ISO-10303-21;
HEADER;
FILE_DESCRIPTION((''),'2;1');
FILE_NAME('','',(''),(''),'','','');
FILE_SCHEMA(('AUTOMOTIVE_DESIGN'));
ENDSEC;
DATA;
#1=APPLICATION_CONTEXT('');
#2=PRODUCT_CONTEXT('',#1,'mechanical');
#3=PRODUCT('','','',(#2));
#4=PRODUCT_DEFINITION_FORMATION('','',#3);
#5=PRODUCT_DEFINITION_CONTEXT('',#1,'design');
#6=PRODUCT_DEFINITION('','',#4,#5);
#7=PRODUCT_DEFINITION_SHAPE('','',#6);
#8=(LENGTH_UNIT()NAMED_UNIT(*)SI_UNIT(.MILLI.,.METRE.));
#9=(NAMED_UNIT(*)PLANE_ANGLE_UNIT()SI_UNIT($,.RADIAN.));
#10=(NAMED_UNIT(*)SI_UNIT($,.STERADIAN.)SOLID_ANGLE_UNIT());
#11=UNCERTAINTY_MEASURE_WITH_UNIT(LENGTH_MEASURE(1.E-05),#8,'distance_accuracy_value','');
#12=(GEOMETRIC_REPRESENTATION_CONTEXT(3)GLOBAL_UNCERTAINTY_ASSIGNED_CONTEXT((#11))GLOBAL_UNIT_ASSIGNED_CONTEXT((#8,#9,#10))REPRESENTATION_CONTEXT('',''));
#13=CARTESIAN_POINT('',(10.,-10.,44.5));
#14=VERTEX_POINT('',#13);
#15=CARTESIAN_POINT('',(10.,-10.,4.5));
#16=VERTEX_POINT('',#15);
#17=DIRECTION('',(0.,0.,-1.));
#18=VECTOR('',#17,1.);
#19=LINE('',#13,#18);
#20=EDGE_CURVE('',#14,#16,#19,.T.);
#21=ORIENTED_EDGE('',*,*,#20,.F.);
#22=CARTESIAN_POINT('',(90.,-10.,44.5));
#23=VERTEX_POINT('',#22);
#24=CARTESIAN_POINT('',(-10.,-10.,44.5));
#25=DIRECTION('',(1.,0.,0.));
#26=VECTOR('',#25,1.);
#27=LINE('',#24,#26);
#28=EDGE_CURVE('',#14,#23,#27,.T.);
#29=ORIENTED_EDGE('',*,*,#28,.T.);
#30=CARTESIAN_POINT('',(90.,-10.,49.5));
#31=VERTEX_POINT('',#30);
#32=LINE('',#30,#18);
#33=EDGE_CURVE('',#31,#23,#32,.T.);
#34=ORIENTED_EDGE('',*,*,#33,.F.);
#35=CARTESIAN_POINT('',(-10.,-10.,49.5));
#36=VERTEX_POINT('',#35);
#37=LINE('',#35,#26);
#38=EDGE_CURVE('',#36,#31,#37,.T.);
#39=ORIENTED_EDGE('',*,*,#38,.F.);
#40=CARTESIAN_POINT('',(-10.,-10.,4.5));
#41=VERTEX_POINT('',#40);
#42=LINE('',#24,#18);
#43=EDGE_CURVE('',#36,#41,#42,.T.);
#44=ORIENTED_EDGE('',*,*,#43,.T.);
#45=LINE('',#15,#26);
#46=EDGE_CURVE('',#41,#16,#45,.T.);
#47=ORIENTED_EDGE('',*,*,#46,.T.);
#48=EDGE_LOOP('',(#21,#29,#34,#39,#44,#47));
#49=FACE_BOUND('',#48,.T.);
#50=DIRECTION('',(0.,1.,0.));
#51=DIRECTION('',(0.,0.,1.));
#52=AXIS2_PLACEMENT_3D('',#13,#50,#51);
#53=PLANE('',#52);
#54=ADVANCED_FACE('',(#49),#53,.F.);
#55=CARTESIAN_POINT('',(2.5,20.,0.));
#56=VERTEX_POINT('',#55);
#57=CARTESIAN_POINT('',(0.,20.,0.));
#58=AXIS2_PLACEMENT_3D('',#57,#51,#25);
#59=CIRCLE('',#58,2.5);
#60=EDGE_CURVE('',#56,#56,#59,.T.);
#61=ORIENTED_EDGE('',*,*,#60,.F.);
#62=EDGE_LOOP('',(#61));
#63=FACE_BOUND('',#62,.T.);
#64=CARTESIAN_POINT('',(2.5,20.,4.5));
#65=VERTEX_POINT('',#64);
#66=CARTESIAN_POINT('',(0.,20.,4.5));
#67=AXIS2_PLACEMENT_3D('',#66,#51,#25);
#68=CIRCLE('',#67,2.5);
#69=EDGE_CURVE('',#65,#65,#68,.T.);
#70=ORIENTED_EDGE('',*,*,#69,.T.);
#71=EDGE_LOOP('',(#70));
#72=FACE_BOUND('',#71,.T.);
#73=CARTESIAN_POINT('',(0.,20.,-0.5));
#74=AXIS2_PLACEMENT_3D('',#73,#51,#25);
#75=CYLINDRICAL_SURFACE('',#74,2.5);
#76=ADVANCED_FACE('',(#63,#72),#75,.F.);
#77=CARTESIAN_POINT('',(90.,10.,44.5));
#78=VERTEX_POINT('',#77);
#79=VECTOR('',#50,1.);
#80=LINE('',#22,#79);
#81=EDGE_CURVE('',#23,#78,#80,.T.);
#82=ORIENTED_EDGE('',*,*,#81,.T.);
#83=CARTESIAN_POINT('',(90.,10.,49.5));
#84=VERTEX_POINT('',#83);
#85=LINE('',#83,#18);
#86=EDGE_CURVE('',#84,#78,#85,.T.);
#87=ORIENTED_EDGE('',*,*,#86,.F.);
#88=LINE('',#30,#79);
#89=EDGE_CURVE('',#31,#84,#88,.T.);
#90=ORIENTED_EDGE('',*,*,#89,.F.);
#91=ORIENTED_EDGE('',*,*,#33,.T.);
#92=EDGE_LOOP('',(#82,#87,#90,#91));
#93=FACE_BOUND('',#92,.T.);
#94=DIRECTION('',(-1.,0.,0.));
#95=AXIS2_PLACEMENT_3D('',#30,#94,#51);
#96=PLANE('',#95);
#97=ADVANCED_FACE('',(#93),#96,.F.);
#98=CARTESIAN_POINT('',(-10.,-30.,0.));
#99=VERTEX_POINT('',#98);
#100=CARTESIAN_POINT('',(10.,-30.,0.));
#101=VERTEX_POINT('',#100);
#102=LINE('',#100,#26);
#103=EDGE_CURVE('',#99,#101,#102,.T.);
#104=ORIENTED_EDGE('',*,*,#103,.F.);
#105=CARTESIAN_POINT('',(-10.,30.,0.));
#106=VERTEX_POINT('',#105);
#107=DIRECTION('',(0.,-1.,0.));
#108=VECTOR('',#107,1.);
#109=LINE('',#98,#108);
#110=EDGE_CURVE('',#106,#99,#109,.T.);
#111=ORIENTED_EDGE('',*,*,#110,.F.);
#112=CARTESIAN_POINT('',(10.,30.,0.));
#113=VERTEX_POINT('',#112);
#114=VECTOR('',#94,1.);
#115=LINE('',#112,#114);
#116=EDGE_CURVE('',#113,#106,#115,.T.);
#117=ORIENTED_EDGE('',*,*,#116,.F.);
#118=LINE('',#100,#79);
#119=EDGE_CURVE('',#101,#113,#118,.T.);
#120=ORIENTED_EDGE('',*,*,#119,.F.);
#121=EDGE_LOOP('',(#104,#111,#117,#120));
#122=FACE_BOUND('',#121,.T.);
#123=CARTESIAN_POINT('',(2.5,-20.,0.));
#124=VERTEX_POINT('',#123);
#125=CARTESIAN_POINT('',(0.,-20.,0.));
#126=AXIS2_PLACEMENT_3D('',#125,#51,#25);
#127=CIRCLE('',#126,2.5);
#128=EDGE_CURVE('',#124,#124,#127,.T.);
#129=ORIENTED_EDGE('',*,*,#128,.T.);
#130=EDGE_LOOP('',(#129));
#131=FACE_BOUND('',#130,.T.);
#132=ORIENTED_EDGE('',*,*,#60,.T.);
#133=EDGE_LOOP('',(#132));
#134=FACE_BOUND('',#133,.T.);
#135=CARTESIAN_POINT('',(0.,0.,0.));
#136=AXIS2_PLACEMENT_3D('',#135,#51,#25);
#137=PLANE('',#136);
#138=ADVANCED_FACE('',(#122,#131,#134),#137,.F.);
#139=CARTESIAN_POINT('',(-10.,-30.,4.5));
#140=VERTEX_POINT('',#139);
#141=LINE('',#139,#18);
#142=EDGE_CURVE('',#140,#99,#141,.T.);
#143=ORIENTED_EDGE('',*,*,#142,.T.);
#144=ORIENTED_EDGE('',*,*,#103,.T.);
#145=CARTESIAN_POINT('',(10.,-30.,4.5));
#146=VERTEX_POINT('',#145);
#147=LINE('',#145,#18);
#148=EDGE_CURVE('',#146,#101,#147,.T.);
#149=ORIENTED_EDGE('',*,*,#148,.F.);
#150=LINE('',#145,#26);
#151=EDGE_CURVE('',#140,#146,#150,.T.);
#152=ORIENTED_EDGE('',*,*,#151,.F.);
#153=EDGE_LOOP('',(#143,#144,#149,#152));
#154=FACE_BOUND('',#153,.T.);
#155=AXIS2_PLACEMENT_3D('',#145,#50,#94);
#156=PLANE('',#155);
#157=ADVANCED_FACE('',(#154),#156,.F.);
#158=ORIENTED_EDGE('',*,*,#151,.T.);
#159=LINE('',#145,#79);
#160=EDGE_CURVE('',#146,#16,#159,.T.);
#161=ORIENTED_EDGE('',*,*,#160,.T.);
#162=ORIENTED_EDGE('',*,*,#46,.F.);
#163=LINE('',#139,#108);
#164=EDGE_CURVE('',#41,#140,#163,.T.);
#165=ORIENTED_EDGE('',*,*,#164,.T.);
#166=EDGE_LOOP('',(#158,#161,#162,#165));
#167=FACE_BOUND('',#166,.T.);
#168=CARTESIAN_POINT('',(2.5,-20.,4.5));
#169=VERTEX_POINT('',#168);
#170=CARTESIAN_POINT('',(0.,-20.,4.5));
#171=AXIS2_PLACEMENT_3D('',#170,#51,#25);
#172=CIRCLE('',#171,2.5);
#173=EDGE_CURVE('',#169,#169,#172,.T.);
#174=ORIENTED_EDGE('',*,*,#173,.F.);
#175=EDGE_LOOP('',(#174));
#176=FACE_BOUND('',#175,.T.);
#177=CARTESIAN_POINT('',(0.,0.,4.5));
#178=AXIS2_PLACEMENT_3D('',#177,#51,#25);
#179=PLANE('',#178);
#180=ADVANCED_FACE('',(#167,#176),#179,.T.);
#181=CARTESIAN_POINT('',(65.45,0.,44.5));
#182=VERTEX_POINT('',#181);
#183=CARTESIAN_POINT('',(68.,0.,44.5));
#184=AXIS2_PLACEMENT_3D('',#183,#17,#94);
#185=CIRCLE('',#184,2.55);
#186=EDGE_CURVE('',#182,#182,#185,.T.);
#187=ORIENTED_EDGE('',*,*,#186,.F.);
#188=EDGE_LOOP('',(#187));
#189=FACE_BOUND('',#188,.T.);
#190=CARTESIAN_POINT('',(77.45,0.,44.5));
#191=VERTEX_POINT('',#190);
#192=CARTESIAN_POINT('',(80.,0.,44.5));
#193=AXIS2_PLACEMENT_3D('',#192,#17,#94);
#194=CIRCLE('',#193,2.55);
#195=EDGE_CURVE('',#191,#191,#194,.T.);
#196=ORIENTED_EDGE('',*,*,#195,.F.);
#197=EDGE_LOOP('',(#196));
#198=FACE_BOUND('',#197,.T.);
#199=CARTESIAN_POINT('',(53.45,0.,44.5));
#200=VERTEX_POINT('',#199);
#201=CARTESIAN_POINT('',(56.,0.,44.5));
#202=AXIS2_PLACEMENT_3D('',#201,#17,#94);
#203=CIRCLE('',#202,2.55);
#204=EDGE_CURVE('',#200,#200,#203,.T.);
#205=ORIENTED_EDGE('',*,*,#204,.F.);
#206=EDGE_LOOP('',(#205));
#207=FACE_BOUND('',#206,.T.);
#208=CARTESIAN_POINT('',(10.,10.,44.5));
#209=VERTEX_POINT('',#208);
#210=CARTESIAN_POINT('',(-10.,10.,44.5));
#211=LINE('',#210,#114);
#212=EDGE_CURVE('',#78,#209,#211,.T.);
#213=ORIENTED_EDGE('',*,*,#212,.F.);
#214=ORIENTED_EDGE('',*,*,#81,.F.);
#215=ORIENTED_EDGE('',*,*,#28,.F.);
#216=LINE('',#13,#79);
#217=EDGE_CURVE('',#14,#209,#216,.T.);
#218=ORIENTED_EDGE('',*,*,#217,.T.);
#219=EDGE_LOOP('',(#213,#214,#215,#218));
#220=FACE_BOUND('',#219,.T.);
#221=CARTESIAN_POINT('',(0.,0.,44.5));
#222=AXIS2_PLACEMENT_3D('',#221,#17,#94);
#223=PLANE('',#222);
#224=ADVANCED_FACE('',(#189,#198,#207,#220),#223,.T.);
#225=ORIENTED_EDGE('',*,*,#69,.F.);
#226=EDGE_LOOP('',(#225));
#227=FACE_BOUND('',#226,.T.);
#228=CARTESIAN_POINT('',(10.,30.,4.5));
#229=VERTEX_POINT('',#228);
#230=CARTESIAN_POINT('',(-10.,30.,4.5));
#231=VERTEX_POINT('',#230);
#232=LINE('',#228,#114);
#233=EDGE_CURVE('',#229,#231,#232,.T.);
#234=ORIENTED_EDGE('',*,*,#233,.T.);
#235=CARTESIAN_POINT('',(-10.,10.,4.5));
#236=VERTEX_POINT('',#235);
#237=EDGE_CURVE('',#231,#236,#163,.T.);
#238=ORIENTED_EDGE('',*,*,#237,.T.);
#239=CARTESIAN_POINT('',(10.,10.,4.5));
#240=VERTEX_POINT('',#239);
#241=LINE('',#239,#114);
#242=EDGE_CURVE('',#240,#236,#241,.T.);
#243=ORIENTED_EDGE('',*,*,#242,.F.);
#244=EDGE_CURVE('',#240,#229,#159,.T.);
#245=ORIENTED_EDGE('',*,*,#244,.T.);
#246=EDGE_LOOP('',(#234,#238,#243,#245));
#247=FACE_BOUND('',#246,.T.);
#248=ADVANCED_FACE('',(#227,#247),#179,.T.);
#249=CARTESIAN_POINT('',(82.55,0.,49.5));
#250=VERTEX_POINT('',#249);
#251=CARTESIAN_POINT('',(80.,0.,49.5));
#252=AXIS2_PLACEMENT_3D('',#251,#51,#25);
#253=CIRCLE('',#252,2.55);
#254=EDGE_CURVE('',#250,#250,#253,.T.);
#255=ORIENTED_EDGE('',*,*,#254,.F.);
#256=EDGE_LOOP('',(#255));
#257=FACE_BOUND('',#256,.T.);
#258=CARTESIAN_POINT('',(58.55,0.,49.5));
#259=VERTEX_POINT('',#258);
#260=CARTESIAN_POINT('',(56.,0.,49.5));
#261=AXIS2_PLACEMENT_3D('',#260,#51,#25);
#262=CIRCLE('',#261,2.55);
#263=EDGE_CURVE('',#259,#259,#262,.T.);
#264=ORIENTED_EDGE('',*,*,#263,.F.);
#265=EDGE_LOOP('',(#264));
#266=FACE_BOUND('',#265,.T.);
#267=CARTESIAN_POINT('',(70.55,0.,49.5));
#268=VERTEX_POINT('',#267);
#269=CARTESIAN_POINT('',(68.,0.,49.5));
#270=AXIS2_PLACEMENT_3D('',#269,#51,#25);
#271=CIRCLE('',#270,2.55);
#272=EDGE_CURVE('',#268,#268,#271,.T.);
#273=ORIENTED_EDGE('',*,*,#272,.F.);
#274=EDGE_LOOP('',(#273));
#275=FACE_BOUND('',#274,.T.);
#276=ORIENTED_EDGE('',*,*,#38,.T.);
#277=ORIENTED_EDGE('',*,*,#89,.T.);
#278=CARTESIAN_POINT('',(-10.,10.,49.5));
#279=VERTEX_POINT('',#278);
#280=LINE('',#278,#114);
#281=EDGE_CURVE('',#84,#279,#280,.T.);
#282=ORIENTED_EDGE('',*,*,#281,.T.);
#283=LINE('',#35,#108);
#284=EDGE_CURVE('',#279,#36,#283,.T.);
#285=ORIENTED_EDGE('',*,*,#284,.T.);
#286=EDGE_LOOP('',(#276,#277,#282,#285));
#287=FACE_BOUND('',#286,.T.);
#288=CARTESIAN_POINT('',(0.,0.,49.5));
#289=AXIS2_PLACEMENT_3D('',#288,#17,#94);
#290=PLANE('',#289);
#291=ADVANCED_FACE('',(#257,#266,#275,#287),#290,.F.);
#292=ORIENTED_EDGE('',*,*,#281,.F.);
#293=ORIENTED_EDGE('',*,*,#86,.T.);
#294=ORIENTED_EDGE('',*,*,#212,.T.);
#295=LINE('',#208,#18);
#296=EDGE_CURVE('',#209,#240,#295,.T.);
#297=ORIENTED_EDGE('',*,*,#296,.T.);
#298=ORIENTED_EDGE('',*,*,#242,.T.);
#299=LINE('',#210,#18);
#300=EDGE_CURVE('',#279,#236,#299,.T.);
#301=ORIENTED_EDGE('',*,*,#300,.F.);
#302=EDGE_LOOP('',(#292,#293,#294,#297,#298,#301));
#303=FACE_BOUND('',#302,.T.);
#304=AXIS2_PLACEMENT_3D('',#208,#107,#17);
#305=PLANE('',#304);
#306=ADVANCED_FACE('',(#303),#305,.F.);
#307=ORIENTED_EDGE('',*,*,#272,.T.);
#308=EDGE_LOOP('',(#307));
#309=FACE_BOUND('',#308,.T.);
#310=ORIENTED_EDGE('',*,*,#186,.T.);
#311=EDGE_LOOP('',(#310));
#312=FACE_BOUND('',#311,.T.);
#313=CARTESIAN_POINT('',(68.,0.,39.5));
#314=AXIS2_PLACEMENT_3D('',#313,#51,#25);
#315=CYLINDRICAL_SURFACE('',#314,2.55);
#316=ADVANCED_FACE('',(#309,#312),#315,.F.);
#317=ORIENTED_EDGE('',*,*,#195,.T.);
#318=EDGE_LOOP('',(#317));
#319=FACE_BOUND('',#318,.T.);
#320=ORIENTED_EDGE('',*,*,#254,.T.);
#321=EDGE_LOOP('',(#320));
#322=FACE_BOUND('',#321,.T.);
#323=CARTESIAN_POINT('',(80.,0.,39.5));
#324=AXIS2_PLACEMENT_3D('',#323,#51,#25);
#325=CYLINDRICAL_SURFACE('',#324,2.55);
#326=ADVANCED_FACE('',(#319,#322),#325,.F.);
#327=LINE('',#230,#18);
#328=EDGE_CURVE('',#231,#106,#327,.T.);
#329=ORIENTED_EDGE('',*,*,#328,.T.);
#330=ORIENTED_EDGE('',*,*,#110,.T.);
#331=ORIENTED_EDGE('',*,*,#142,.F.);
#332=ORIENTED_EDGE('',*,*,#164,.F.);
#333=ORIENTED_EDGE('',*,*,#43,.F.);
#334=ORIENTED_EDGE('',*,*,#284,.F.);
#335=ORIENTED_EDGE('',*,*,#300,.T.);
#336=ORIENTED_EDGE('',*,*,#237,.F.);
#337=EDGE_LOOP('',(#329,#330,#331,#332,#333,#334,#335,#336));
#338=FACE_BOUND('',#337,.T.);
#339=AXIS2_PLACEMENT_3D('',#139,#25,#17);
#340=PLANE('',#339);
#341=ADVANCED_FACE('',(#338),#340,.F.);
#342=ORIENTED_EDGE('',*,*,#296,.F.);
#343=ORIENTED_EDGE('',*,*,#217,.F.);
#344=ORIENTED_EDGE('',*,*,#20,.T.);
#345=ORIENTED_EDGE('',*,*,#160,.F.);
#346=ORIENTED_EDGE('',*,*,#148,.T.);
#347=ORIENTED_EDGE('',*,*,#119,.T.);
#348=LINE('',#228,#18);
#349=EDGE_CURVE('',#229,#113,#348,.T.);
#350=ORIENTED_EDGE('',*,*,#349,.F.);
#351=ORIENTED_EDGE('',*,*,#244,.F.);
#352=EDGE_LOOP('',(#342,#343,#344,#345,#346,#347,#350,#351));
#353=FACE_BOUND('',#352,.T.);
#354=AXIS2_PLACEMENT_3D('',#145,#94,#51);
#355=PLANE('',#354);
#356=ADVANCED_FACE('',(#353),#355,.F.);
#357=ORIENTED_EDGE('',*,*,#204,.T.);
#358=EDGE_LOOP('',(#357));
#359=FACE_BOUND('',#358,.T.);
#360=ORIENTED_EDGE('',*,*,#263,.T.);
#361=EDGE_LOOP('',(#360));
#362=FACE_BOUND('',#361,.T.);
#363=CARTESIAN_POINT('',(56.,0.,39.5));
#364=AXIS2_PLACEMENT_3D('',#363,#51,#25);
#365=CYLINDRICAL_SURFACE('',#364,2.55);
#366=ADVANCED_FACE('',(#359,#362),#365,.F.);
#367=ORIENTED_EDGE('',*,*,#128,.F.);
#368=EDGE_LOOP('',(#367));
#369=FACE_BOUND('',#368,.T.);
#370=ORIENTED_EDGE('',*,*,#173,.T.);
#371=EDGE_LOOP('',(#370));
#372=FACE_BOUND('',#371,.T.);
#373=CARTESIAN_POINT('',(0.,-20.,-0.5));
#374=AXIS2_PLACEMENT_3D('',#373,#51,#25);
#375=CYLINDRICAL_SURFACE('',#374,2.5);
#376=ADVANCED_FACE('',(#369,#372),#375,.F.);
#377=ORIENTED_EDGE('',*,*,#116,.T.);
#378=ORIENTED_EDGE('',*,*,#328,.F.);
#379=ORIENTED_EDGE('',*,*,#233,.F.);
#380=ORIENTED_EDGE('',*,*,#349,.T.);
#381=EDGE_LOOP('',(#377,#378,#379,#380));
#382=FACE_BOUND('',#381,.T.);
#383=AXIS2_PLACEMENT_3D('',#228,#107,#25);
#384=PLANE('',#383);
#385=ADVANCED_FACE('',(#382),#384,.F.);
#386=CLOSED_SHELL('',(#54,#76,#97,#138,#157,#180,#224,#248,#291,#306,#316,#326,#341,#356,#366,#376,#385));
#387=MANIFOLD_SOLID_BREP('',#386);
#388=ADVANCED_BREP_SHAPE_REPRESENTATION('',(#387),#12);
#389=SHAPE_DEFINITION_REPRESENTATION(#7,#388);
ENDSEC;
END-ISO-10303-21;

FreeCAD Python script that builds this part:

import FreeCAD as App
import Part
import Sketcher
Q = App.Units.Quantity


def add_polygon(sketch, points):
    """Adds a closed chain of lines whose ends are joined by coincident constraints."""
    first, n = sketch.GeometryCount, len(points)
    for a, b in zip(points, points[1:] + points[:1]):
        sketch.addGeometry(Part.LineSegment(App.Vector(*a, 0), App.Vector(*b, 0)), False)
    for i in range(n):
        sketch.addConstraint(Sketcher.Constraint("Coincident", first + i, 2, first + (i + 1) % n, 1))

doc = App.newDocument("Part")
body = doc.addObject("PartDesign::Body", "Body")

# Sketch on XY plane
sketch1 = body.newObject("Sketcher::SketchObject", "Sketch")
sketch1.AttachmentSupport = (doc.getObject("XY_Plane"), [""])
sketch1.MapMode = "FlatFace"
add_polygon(sketch1, [(-10, 30), (-10, -30), (10, -30), (10, 30)])  # lines 0-3
sketch1.addConstraint(Sketcher.Constraint("Vertical", 0))
sketch1.addConstraint(Sketcher.Constraint("Horizontal", 1))
sketch1.addConstraint(Sketcher.Constraint("Vertical", 2))
sketch1.addConstraint(Sketcher.Constraint("Horizontal", 3))
sketch1.addConstraint(Sketcher.Constraint("Symmetric", 0, 2, 2, 2, -1, 1))
sketch1.addConstraint(Sketcher.Constraint("DistanceX", 1, 1, 1, 2, Q("20 mm")))
sketch1.addConstraint(Sketcher.Constraint("DistanceY", 0, 2, 0, 1, Q("60 mm")))
pad1 = body.newObject("PartDesign::Pad", "Pad")
pad1.Profile = sketch1
pad1.Length = 4.5

# Sketch on XY plane
sketch2 = body.newObject("Sketcher::SketchObject", "Sketch001")
sketch2.AttachmentSupport = (doc.getObject("XY_Plane"), [""])
sketch2.MapMode = "FlatFace"
sketch2.AttachmentOffset = App.Placement(App.Vector(0, 0, 4.5), App.Rotation())
add_polygon(sketch2, [(-10, 10), (-10, -10), (10, -10), (10, 10)])  # lines 0-3
sketch2.addConstraint(Sketcher.Constraint("Vertical", 0))
sketch2.addConstraint(Sketcher.Constraint("Horizontal", 1))
sketch2.addConstraint(Sketcher.Constraint("Vertical", 2))
sketch2.addConstraint(Sketcher.Constraint("Horizontal", 3))
sketch2.addConstraint(Sketcher.Constraint("Symmetric", 0, 2, 2, 2, -1, 1))
sketch2.addConstraint(Sketcher.Constraint("Equal", 3, 0))
sketch2.addConstraint(Sketcher.Constraint("DistanceX", 1, 1, 1, 2, Q("20 mm")))
pad2 = body.newObject("PartDesign::Pad", "Pad001")
pad2.Profile = sketch2
pad2.Length = 40

# Sketch on XY plane
sketch3 = body.newObject("Sketcher::SketchObject", "Sketch002")
sketch3.AttachmentSupport = (doc.getObject("XY_Plane"), [""])
sketch3.MapMode = "FlatFace"
sketch3.AttachmentOffset = App.Placement(App.Vector(0, 0, 44.5), App.Rotation())
add_polygon(sketch3, [(-10, 10), (-10, -10), (90, -10), (90, 10)])  # lines 0-3
sketch3.addConstraint(Sketcher.Constraint("Vertical", 0))
sketch3.addConstraint(Sketcher.Constraint("Horizontal", 1))
sketch3.addConstraint(Sketcher.Constraint("Vertical", 2))
sketch3.addConstraint(Sketcher.Constraint("Horizontal", 3))
sketch3.addConstraint(Sketcher.Constraint("DistanceX", 1, 1, 1, 2, Q("100 mm")))
sketch3.addConstraint(Sketcher.Constraint("DistanceY", 0, 2, 0, 1, Q("20 mm")))
sketch3.addConstraint(Sketcher.Constraint("DistanceX", 0, 2, -1, 1, Q("10 mm")))
sketch3.addConstraint(Sketcher.Constraint("DistanceY", 0, 2, -1, 1, Q("10 mm")))
pad3 = body.newObject("PartDesign::Pad", "Pad002")
pad3.Profile = sketch3
pad3.Length = 5

# Sketch on XY plane
sketch4 = body.newObject("Sketcher::SketchObject", "Sketch003")
sketch4.AttachmentSupport = (doc.getObject("XY_Plane"), [""])
sketch4.MapMode = "FlatFace"
sketch4.AttachmentOffset = App.Placement(App.Vector(0, 0, 4.5), App.Rotation())
sketch4.addGeometry(Part.Circle(App.Vector(0, 20, 0), App.Vector(0, 0, 1), 2.5), False)
sketch4.addGeometry(Part.Circle(App.Vector(0, -20, 0), App.Vector(0, 0, 1), 2.5), False)
sketch4.addConstraint(Sketcher.Constraint("Equal", 0, 1))
sketch4.addConstraint(Sketcher.Constraint("Symmetric", 0, 3, 1, 3, -1, 1))
sketch4.addConstraint(Sketcher.Constraint("PointOnObject", 0, 3, -2))
sketch4.addConstraint(Sketcher.Constraint("Diameter", 0, Q("5 mm")))
sketch4.addConstraint(Sketcher.Constraint("DistanceY", -1, 1, 0, 3, Q("20 mm")))
pocket1 = body.newObject("PartDesign::Pocket", "Pocket")
pocket1.Profile = sketch4
pocket1.Length = 5

# Sketch on XY plane
sketch5 = body.newObject("Sketcher::SketchObject", "Sketch004")
sketch5.AttachmentSupport = (doc.getObject("XY_Plane"), [""])
sketch5.MapMode = "FlatFace"
sketch5.AttachmentOffset = App.Placement(App.Vector(0, 0, 49.5), App.Rotation())
sketch5.addGeometry(Part.Circle(App.Vector(80, 0, 0), App.Vector(0, 0, 1), 2.5), False)
sketch5.addGeometry(Part.Circle(App.Vector(68, 0, 0), App.Vector(0, 0, 1), 2.5), False)
sketch5.addGeometry(Part.Circle(App.Vector(56, 0, 0), App.Vector(0, 0, 1), 2.5), False)
sketch5.addConstraint(Sketcher.Constraint("Equal", 0, 1))
sketch5.addConstraint(Sketcher.Constraint("Equal", 1, 2))
sketch5.addConstraint(Sketcher.Constraint("PointOnObject", 0, 3, -1))
sketch5.addConstraint(Sketcher.Constraint("PointOnObject", 1, 3, -1))
sketch5.addConstraint(Sketcher.Constraint("PointOnObject", 2, 3, -1))
sketch5.addConstraint(Sketcher.Constraint("Diameter", 0, Q("5.1 mm")))
sketch5.addConstraint(Sketcher.Constraint("DistanceX", -1, 1, 0, 3, Q("80 mm")))
sketch5.addConstraint(Sketcher.Constraint("DistanceX", -1, 1, 1, 3, Q("68 mm")))
sketch5.addConstraint(Sketcher.Constraint("DistanceX", -1, 1, 2, 3, Q("56 mm")))
pocket2 = body.newObject("PartDesign::Pocket", "Pocket001")
pocket2.Profile = sketch5
pocket2.Length = 10

doc.recompute()
